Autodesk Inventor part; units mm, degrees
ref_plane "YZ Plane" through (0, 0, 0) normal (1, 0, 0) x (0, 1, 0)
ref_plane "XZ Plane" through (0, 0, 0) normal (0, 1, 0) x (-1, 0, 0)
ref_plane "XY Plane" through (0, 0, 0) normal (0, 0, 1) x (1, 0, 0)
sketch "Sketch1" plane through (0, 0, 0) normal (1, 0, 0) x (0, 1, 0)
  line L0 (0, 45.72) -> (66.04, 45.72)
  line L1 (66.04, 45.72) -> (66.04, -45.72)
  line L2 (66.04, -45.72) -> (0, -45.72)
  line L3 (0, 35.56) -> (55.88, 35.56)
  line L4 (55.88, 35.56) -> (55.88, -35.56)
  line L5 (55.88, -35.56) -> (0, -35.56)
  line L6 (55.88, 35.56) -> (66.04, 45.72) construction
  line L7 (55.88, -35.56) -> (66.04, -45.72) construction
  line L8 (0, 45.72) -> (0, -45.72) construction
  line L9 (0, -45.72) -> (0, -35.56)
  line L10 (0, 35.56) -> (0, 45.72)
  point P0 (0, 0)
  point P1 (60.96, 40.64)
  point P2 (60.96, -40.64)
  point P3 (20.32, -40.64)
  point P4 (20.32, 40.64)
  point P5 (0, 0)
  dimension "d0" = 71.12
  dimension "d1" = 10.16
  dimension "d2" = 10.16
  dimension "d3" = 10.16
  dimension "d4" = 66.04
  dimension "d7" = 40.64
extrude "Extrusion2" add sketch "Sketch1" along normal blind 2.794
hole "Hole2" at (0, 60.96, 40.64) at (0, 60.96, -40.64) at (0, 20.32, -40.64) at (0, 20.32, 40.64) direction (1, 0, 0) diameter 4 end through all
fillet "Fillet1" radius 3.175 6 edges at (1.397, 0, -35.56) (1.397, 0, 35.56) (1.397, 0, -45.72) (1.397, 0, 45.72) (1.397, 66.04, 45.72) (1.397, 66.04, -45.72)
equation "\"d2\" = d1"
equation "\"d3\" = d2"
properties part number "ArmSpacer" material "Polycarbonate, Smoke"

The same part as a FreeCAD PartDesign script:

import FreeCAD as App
import Part
import Sketcher
Q = App.Units.Quantity


def edges_at(feature, points):
    """Names of the edges that pass closest to the given points."""
    edges = feature.Shape.Edges
    near = lambda p: min(range(len(edges)), key=lambda i: edges[i].distToShape(Part.Vertex(*p))[0])
    return sorted({f"Edge{near(p) + 1}" for p in points})

doc = App.newDocument("Part")
body = doc.addObject("PartDesign::Body", "Body")

sketch1 = body.newObject("Sketcher::SketchObject", "Sketch")
sketch1.AttachmentSupport = (doc.getObject("YZ_Plane"), [""])
sketch1.MapMode = "FlatFace"
sketch1.addGeometry(Part.LineSegment(App.Vector(66, 46, 0), App.Vector(0, 46, 0)), False)
sketch1.addGeometry(Part.LineSegment(App.Vector(0, 46, 0), App.Vector(0, 36, 0)), False)
sketch1.addGeometry(Part.LineSegment(App.Vector(0, 36, 0), App.Vector(56, 36, 0)), False)
sketch1.addGeometry(Part.LineSegment(App.Vector(56, 36, 0), App.Vector(56, -36, 0)), False)
sketch1.addGeometry(Part.LineSegment(App.Vector(56, -36, 0), App.Vector(0, -36, 0)), False)
sketch1.addGeometry(Part.LineSegment(App.Vector(0, -36, 0), App.Vector(0, -46, 0)), False)
sketch1.addGeometry(Part.LineSegment(App.Vector(0, -46, 0), App.Vector(66, -46, 0)), False)
sketch1.addGeometry(Part.LineSegment(App.Vector(66, -46, 0), App.Vector(66, 46, 0)), False)
sketch1.addConstraint(Sketcher.Constraint("Coincident", 0, 2, 1, 1))
sketch1.addConstraint(Sketcher.Constraint("Coincident", 1, 2, 2, 1))
sketch1.addConstraint(Sketcher.Constraint("Coincident", 2, 2, 3, 1))
sketch1.addConstraint(Sketcher.Constraint("Coincident", 3, 2, 4, 1))
sketch1.addConstraint(Sketcher.Constraint("Coincident", 4, 2, 5, 1))
sketch1.addConstraint(Sketcher.Constraint("Coincident", 5, 2, 6, 1))
sketch1.addConstraint(Sketcher.Constraint("Coincident", 6, 2, 7, 1))
sketch1.addConstraint(Sketcher.Constraint("Coincident", 7, 2, 0, 1))
sketch1.addConstraint(Sketcher.Constraint("Horizontal", 0))
sketch1.addConstraint(Sketcher.Constraint("Vertical", 1))
sketch1.addConstraint(Sketcher.Constraint("Horizontal", 2))
sketch1.addConstraint(Sketcher.Constraint("Vertical", 3))
sketch1.addConstraint(Sketcher.Constraint("Horizontal", 4))
sketch1.addConstraint(Sketcher.Constraint("Vertical", 5))
sketch1.addConstraint(Sketcher.Constraint("Horizontal", 6))
sketch1.addConstraint(Sketcher.Constraint("Vertical", 7))
sketch1.addConstraint(Sketcher.Constraint("Symmetric", 1, 2, 4, 2, -1, 1))
sketch1.addConstraint(Sketcher.Constraint("Symmetric", 0, 2, 5, 2, -1))
sketch1.addConstraint(Sketcher.Constraint("DistanceX", 0, 2, 0, 1, Q("2.6 in")))
sketch1.addConstraint(Sketcher.Constraint("DistanceY", 1, 2, 1, 1, Q("0.4 in")))
sketch1.addConstraint(Sketcher.Constraint("DistanceY", 3, 2, 3, 1, Q("2.8 in")))
sketch1.addConstraint(Sketcher.Constraint("DistanceX", 3, 2, 6, 2, Q("0.4 in")))
pad1 = body.newObject("PartDesign::Pad", "Pad")
pad1.Profile = sketch1
pad1.Length = Q("0.11 in")

sketch2 = body.newObject("Sketcher::SketchObject", "Sketch001")
sketch2.AttachmentSupport = (doc.getObject("YZ_Plane"), [""])
sketch2.MapMode = "FlatFace"
sketch2.addGeometry(Part.Circle(App.Vector(61, 40.6, 0), App.Vector(0, 0, 1), 2), False)
sketch2.addGeometry(Part.Circle(App.Vector(61, -40.6, 0), App.Vector(0, 0, 1), 2), False)
sketch2.addGeometry(Part.Circle(App.Vector(20.3, -40.6, 0), App.Vector(0, 0, 1), 2), False)
sketch2.addGeometry(Part.Circle(App.Vector(20.3, 40.6, 0), App.Vector(0, 0, 1), 2), False)
sketch2.addConstraint(Sketcher.Constraint("Equal", 0, 1))
sketch2.addConstraint(Sketcher.Constraint("Equal", 1, 2))
sketch2.addConstraint(Sketcher.Constraint("Equal", 2, 3))
sketch2.addConstraint(Sketcher.Constraint("Symmetric", 0, 3, 1, 3, -1))
sketch2.addConstraint(Sketcher.Constraint("Symmetric", 2, 3, 3, 3, -1))
sketch2.addConstraint(Sketcher.Constraint("Horizontal", 1, 3, 2, 3))
sketch2.addConstraint(Sketcher.Constraint("DistanceX", -1, 1, 0, 3, Q("2.4 in")))
sketch2.addConstraint(Sketcher.Constraint("DistanceY", -1, 1, 0, 3, Q("1.6 in")))
sketch2.addConstraint(Sketcher.Constraint("DistanceX", -1, 1, 2, 3, Q("0.8 in")))
sketch2.addConstraint(Sketcher.Constraint("Diameter", 0, 4.0))
doc.recompute()
hole = body.newObject("PartDesign::Hole", "Hole")
hole.Profile = sketch2
hole.ThreadType = "None"
hole.Diameter = 4
hole.DepthType = "ThroughAll"
hole.Reversed = True
doc.recompute()

fillet = body.newObject("PartDesign::Fillet", "Fillet")
fillet.Base = (hole, edges_at(hole, [
    (1.397, 0, -35.56),
    (1.397, 0, 35.56),
    (1.397, 0, -45.72),
    (1.397, 0, 45.72),
    (1.397, 66.04, 45.72),
    (1.397, 66.04, -45.72),
]))
fillet.Radius = Q("0.125 in")

doc.recompute()
